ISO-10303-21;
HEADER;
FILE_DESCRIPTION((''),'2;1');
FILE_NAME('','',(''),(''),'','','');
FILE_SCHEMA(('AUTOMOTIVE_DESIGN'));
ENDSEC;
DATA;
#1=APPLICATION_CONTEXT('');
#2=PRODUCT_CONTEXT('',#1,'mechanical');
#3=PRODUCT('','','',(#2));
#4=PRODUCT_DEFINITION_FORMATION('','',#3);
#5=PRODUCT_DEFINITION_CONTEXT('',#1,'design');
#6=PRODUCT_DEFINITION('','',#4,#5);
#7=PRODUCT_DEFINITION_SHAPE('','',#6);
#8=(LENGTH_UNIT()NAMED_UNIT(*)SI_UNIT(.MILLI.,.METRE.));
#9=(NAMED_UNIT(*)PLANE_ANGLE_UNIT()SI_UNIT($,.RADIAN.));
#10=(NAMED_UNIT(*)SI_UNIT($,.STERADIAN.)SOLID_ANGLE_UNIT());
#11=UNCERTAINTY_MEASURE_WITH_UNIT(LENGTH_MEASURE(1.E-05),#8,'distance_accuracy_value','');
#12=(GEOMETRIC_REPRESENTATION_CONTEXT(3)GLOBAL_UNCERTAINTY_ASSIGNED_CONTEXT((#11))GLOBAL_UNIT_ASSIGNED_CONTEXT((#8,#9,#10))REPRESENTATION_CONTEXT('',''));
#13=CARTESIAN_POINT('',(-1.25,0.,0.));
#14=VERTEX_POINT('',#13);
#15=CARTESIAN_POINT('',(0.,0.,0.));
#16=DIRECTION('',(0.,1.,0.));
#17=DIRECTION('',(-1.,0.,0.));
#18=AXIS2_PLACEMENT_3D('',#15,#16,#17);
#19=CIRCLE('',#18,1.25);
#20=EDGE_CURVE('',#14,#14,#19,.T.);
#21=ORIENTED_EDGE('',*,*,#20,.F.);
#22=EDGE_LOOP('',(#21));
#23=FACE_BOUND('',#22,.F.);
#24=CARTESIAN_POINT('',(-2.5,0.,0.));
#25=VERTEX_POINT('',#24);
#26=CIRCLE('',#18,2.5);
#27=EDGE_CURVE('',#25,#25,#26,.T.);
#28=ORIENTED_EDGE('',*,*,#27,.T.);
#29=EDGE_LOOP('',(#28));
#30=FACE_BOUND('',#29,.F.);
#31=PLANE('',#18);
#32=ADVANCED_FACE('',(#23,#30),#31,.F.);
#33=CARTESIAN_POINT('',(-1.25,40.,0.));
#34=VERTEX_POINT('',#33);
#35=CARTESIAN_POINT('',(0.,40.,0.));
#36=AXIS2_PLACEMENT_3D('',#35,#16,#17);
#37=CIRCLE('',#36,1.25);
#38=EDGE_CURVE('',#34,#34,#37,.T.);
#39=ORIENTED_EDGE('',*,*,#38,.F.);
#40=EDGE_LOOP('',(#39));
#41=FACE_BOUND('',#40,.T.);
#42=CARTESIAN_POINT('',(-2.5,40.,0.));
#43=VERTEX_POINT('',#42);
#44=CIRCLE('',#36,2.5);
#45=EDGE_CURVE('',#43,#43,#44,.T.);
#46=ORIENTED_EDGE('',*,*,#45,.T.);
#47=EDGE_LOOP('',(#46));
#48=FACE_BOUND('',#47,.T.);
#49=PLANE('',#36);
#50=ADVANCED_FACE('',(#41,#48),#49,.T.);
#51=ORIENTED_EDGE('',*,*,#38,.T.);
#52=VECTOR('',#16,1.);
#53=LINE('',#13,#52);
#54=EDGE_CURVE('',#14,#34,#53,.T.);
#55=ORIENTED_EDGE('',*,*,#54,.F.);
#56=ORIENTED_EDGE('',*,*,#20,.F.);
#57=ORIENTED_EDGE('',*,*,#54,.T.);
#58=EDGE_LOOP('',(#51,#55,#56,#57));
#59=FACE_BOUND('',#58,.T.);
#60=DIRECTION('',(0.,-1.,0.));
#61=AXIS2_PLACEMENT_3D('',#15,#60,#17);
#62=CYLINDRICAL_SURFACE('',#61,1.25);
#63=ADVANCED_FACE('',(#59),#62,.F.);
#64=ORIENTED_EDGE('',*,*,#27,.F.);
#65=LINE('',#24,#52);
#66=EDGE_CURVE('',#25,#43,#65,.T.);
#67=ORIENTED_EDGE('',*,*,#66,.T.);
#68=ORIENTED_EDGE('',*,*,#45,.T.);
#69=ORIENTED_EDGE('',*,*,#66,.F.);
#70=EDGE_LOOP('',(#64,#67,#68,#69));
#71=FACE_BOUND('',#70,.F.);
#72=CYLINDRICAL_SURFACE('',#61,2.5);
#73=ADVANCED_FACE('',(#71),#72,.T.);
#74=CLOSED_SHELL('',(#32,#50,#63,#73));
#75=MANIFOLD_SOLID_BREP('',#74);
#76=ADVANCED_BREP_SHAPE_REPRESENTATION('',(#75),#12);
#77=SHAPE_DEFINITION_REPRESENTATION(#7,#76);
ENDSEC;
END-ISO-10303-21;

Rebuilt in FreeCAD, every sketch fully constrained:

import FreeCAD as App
import Part
import Sketcher

doc = App.newDocument("Part")
body = doc.addObject("PartDesign::Body", "Body")

sketch1 = body.newObject("Sketcher::SketchObject", "Sketch")
sketch1.AttachmentSupport = (doc.getObject("XZ_Plane"), [""])
sketch1.MapMode = "FlatFace"
sketch1.addGeometry(Part.Circle(App.Vector(0, 0, 0), App.Vector(0, 0, 1), 2.5), False)
sketch1.addGeometry(Part.Circle(App.Vector(0, 0, 0), App.Vector(0, 0, 1), 1.2), False)
sketch1.addConstraint(Sketcher.Constraint("Coincident", 0, 3, -1, 1))
sketch1.addConstraint(Sketcher.Constraint("Coincident", 1, 3, -1, 1))
sketch1.addConstraint(Sketcher.Constraint("Diameter", 0, 5.0))
sketch1.addConstraint(Sketcher.Constraint("Diameter", 1, 2.5))
pad1 = body.newObject("PartDesign::Pad", "Pad")
pad1.Profile = sketch1
pad1.Length = 40
pad1.Reversed = True

doc.recompute()
